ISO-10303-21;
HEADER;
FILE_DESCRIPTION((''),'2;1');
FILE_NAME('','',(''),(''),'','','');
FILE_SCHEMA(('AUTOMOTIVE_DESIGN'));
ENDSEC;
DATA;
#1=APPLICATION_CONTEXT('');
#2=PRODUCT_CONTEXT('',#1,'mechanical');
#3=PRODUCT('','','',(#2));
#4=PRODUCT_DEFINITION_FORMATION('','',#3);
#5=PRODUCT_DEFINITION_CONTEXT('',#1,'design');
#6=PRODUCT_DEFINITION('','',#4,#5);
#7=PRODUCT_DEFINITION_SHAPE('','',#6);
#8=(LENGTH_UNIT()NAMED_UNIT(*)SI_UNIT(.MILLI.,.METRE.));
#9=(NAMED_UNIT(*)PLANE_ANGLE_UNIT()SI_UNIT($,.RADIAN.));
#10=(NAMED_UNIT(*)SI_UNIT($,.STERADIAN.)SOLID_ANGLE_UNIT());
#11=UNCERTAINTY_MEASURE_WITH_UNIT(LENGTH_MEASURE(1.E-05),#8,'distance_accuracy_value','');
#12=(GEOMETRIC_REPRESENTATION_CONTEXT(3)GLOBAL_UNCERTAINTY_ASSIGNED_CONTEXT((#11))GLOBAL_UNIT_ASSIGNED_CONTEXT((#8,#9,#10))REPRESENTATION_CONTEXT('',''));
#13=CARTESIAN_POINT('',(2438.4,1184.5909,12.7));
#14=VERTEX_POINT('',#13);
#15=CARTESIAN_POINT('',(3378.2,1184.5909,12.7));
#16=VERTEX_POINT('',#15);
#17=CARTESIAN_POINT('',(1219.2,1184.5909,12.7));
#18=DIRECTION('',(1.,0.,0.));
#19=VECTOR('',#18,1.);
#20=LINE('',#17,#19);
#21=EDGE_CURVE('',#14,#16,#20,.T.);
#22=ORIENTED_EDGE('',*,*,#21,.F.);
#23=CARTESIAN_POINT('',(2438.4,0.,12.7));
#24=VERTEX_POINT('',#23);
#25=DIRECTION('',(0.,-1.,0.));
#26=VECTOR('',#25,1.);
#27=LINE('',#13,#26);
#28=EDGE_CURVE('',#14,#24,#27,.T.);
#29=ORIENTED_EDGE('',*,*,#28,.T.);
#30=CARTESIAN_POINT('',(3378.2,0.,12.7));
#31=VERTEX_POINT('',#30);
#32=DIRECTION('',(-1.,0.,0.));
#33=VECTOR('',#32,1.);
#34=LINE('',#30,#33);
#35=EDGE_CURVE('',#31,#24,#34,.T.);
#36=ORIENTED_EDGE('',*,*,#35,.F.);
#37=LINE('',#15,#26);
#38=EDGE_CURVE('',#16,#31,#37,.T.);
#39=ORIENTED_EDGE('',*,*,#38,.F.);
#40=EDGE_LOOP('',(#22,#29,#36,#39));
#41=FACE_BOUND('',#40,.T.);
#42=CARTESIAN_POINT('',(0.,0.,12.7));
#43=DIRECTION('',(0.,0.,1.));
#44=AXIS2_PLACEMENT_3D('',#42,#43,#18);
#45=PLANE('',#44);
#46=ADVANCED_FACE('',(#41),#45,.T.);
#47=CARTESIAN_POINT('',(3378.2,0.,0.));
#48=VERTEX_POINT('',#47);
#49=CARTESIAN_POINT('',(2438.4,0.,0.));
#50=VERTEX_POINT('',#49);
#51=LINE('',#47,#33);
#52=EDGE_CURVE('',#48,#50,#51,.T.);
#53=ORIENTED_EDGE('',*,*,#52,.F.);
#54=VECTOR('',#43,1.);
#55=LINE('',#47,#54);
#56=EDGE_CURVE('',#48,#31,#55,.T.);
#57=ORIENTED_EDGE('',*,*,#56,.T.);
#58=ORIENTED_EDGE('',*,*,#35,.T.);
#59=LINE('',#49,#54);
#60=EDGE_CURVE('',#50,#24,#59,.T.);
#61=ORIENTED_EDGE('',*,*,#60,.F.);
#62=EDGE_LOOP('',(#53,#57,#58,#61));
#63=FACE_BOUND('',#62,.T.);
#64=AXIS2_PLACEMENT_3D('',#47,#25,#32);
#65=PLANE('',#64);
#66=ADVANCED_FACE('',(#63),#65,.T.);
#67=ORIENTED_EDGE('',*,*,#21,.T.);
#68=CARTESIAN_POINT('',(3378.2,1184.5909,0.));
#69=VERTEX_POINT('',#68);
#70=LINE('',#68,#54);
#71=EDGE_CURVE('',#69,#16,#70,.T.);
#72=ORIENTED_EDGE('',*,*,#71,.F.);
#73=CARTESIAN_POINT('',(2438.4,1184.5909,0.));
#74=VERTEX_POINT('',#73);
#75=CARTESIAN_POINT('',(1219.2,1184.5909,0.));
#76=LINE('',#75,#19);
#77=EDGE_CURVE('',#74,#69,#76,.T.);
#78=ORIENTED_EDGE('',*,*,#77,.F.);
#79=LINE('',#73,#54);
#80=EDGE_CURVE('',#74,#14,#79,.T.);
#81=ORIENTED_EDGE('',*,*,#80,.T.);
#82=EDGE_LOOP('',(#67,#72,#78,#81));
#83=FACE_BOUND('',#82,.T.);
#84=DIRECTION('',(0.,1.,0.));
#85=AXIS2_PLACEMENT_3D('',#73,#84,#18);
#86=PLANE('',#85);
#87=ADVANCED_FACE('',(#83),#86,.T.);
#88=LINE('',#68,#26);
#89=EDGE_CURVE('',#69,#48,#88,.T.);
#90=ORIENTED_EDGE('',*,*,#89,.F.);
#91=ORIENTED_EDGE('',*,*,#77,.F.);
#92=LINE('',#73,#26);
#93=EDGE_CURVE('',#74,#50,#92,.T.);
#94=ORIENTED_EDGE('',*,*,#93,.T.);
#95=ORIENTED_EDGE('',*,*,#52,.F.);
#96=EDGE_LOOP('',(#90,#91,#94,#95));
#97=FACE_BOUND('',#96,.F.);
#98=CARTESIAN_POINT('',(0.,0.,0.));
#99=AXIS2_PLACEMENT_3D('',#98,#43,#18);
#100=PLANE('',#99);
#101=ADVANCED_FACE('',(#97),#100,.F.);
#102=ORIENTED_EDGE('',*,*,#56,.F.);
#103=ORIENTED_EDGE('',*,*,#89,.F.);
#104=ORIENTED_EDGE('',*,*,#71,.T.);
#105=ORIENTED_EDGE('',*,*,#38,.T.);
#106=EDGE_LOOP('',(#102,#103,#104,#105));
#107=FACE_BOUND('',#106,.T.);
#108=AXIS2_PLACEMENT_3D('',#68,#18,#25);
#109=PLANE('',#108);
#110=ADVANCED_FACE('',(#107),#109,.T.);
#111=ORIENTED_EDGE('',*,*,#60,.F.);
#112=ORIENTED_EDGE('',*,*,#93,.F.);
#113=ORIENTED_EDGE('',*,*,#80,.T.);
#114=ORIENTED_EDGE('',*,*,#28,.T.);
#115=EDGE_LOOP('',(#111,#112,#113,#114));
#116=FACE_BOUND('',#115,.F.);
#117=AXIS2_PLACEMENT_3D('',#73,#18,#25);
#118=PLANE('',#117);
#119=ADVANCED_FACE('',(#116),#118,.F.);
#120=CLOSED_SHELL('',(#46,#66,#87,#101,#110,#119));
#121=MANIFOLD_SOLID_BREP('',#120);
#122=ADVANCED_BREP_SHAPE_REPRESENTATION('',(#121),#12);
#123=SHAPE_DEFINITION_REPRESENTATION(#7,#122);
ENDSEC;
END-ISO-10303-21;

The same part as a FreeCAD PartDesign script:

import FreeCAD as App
import Part
import Sketcher

V = App.Vector
Q = App.Units.Quantity

doc = App.newDocument("Part")
body = doc.addObject("PartDesign::Body", "Body")

sketch1 = doc.addObject("Sketcher::SketchObject", "Sketch")
body.addObject(sketch1)
sketch1.AttachmentSupport = (doc.XY_Plane, [""])
sketch1.MapMode = "FlatFace"
sketch1.addGeometry([
    Part.LineSegment(V(2438.4, 1184.5909, 0), V(2438.4, 0, 0)),
    Part.LineSegment(V(2438.4, 0, 0), V(3378.2, 0, 0)),
    Part.LineSegment(V(3378.2, 0, 0), V(3378.2, 1184.5909, 0)),
    Part.LineSegment(V(3378.2, 1184.5909, 0), V(2438.4, 1184.5909, 0)),
], False)
sketch1.addConstraint([
    Sketcher.Constraint("Coincident", 0, 2, 1, 1),
    Sketcher.Constraint("Coincident", 1, 2, 2, 1),
    Sketcher.Constraint("Coincident", 2, 2, 3, 1),
    Sketcher.Constraint("Coincident", 3, 2, 0, 1),
    Sketcher.Constraint("Vertical", 0),
    Sketcher.Constraint("Horizontal", 1),
    Sketcher.Constraint("Vertical", 2),
    Sketcher.Constraint("Horizontal", 3),
    Sketcher.Constraint("PointOnObject", 0, 2, -1),
    Sketcher.Constraint("DistanceX", 1, 1, 1, 2, Q("37 in")),
    Sketcher.Constraint("DistanceX", -1, 1, 0, 2, Q("96 in")),
    Sketcher.Constraint("DistanceY", 0, 2, 0, 1, Q("1184.591 mm")),
])
pad1 = doc.addObject("PartDesign::Pad", "Pad")
body.addObject(pad1)
pad1.Profile = sketch1
pad1.Length = Q("0.5 in")

doc.recompute()
